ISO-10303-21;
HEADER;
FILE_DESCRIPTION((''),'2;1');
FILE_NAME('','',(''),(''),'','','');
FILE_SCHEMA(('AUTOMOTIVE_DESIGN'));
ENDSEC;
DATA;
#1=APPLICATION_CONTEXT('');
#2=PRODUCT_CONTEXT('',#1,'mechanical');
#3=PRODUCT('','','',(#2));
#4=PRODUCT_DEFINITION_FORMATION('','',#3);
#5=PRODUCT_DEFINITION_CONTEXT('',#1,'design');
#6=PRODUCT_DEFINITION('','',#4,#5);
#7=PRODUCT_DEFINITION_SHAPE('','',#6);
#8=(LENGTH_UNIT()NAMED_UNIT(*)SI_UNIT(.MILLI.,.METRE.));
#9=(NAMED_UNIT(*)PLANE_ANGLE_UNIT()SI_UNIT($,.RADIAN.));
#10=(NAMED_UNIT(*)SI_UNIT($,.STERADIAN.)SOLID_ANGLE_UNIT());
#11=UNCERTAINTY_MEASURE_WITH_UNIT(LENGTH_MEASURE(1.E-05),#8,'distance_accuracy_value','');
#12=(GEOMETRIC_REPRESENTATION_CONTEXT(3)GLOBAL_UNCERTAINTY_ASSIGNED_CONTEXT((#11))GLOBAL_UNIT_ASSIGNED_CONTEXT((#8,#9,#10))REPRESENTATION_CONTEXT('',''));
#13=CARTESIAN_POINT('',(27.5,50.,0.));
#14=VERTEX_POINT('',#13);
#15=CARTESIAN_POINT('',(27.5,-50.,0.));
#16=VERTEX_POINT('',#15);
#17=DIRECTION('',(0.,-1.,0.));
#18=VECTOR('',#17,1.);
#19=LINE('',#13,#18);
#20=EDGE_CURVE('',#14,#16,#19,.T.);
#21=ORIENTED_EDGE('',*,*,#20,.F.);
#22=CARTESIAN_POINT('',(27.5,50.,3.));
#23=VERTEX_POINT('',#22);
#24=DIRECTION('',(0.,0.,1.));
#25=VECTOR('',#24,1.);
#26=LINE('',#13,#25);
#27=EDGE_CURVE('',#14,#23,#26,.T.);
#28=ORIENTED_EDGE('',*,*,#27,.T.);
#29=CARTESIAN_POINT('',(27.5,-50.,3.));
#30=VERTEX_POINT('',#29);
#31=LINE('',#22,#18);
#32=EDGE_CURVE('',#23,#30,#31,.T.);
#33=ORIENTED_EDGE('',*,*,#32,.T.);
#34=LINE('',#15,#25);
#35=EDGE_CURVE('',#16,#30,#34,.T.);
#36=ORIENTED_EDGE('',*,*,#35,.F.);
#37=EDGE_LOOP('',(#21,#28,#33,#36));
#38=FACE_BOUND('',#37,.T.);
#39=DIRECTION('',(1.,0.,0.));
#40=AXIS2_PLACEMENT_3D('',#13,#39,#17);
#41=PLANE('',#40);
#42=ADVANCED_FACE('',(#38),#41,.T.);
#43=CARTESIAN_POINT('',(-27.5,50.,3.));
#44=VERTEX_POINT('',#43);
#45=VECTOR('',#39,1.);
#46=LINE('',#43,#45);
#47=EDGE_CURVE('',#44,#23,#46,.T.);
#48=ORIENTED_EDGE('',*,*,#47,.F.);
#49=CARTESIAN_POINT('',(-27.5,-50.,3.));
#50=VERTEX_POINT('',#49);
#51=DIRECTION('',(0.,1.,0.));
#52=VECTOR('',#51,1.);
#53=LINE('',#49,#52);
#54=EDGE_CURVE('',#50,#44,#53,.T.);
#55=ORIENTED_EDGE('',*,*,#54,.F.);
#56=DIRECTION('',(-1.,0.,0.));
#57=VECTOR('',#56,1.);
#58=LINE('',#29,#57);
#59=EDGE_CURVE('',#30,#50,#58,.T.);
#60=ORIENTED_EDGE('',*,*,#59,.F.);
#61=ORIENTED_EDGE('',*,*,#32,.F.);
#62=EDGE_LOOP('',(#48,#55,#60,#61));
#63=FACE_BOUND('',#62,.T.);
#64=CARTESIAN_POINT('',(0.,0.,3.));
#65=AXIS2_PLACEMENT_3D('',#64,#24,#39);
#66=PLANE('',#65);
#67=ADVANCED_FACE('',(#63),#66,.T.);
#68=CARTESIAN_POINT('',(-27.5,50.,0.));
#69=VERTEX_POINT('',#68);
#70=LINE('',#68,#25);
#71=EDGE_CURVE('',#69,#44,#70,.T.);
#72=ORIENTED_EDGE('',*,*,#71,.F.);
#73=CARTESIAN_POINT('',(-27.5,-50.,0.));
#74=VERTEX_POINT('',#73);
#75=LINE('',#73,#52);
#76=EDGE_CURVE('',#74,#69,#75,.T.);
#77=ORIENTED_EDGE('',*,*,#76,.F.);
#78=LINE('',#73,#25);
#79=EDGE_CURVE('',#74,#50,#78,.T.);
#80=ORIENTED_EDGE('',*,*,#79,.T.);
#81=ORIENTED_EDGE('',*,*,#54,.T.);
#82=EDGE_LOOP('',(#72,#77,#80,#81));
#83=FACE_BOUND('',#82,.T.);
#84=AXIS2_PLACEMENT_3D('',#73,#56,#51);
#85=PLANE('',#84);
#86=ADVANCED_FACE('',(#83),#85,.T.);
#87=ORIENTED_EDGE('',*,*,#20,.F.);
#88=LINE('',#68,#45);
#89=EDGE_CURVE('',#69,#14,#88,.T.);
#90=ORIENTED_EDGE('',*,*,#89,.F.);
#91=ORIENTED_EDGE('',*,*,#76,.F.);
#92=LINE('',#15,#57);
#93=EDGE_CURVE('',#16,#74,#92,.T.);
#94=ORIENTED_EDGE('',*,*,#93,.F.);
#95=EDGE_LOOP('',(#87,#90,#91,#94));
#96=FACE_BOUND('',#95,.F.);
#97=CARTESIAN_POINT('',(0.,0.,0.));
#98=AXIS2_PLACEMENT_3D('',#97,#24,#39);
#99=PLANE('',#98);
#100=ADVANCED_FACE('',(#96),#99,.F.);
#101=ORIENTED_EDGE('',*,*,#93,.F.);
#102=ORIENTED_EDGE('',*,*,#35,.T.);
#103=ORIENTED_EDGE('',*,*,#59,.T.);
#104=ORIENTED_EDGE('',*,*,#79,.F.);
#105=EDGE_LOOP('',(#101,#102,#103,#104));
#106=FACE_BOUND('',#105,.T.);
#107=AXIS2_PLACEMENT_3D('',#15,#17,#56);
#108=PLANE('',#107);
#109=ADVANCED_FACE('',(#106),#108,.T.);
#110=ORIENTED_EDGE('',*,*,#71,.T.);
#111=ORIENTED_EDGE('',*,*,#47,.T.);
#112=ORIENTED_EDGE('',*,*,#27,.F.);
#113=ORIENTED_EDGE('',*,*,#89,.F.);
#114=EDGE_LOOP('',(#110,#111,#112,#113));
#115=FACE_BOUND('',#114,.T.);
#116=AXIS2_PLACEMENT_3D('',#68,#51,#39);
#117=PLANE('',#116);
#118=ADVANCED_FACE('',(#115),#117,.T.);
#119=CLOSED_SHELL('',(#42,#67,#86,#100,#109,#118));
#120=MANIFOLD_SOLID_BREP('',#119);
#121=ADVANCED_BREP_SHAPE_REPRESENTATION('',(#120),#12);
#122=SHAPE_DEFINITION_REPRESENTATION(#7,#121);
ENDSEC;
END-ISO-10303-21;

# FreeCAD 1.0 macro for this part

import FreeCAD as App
import Part
import Sketcher

V = App.Vector
Q = App.Units.Quantity


def add_polygon(sketch, points):
    """Adds a closed chain of lines whose ends are joined by coincident constraints."""
    first, n = sketch.GeometryCount, len(points)
    for a, b in zip(points, points[1:] + points[:1]):
        sketch.addGeometry(Part.LineSegment(App.Vector(*a, 0), App.Vector(*b, 0)), False)
    for i in range(n):
        sketch.addConstraint(Sketcher.Constraint("Coincident", first + i, 2, first + (i + 1) % n, 1))

doc = App.newDocument("Part")
params = doc.addObject("Spreadsheet::Sheet", "Params")
for row, (alias, value) in enumerate([
    ("sketch1_width", "55 mm"),
    ("sketch1_height", "100 mm"),
    ("pad1_length", "3 mm"),
], start=1):
    params.set(f"A{row}", alias)
    params.set(f"B{row}", "=" + value)
    params.setAlias(f"B{row}", alias)

body = doc.addObject("PartDesign::Body", "Body")

# Sketch on XY plane
sketch1 = body.newObject("Sketcher::SketchObject", "Sketch")
sketch1.AttachmentSupport = (doc.getObject("XY_Plane"), [""])
sketch1.MapMode = "FlatFace"
add_polygon(sketch1, [(27.5, 50), (-27.5, 50), (-27.5, -50), (27.5, -50)])  # lines 0-3
sketch1.addConstraint([
    Sketcher.Constraint("Horizontal", 0),
    Sketcher.Constraint("Vertical", 1),
    Sketcher.Constraint("Horizontal", 2),
    Sketcher.Constraint("Vertical", 3),
    Sketcher.Constraint("Symmetric", 0, 2, 2, 2, -1, 1),
    Sketcher.Constraint("DistanceX", 0, 2, 0, 1, Q("55 mm")),
    Sketcher.Constraint("DistanceY", 1, 2, 1, 1, Q("100 mm")),
])
sketch1.setExpression("Constraints[9]", "Params.sketch1_width")
sketch1.setExpression("Constraints[10]", "Params.sketch1_height")
pad1 = body.newObject("PartDesign::Pad", "Pad")
pad1.Profile = sketch1
pad1.setExpression("Length", "Params.pad1_length")

doc.recompute()
